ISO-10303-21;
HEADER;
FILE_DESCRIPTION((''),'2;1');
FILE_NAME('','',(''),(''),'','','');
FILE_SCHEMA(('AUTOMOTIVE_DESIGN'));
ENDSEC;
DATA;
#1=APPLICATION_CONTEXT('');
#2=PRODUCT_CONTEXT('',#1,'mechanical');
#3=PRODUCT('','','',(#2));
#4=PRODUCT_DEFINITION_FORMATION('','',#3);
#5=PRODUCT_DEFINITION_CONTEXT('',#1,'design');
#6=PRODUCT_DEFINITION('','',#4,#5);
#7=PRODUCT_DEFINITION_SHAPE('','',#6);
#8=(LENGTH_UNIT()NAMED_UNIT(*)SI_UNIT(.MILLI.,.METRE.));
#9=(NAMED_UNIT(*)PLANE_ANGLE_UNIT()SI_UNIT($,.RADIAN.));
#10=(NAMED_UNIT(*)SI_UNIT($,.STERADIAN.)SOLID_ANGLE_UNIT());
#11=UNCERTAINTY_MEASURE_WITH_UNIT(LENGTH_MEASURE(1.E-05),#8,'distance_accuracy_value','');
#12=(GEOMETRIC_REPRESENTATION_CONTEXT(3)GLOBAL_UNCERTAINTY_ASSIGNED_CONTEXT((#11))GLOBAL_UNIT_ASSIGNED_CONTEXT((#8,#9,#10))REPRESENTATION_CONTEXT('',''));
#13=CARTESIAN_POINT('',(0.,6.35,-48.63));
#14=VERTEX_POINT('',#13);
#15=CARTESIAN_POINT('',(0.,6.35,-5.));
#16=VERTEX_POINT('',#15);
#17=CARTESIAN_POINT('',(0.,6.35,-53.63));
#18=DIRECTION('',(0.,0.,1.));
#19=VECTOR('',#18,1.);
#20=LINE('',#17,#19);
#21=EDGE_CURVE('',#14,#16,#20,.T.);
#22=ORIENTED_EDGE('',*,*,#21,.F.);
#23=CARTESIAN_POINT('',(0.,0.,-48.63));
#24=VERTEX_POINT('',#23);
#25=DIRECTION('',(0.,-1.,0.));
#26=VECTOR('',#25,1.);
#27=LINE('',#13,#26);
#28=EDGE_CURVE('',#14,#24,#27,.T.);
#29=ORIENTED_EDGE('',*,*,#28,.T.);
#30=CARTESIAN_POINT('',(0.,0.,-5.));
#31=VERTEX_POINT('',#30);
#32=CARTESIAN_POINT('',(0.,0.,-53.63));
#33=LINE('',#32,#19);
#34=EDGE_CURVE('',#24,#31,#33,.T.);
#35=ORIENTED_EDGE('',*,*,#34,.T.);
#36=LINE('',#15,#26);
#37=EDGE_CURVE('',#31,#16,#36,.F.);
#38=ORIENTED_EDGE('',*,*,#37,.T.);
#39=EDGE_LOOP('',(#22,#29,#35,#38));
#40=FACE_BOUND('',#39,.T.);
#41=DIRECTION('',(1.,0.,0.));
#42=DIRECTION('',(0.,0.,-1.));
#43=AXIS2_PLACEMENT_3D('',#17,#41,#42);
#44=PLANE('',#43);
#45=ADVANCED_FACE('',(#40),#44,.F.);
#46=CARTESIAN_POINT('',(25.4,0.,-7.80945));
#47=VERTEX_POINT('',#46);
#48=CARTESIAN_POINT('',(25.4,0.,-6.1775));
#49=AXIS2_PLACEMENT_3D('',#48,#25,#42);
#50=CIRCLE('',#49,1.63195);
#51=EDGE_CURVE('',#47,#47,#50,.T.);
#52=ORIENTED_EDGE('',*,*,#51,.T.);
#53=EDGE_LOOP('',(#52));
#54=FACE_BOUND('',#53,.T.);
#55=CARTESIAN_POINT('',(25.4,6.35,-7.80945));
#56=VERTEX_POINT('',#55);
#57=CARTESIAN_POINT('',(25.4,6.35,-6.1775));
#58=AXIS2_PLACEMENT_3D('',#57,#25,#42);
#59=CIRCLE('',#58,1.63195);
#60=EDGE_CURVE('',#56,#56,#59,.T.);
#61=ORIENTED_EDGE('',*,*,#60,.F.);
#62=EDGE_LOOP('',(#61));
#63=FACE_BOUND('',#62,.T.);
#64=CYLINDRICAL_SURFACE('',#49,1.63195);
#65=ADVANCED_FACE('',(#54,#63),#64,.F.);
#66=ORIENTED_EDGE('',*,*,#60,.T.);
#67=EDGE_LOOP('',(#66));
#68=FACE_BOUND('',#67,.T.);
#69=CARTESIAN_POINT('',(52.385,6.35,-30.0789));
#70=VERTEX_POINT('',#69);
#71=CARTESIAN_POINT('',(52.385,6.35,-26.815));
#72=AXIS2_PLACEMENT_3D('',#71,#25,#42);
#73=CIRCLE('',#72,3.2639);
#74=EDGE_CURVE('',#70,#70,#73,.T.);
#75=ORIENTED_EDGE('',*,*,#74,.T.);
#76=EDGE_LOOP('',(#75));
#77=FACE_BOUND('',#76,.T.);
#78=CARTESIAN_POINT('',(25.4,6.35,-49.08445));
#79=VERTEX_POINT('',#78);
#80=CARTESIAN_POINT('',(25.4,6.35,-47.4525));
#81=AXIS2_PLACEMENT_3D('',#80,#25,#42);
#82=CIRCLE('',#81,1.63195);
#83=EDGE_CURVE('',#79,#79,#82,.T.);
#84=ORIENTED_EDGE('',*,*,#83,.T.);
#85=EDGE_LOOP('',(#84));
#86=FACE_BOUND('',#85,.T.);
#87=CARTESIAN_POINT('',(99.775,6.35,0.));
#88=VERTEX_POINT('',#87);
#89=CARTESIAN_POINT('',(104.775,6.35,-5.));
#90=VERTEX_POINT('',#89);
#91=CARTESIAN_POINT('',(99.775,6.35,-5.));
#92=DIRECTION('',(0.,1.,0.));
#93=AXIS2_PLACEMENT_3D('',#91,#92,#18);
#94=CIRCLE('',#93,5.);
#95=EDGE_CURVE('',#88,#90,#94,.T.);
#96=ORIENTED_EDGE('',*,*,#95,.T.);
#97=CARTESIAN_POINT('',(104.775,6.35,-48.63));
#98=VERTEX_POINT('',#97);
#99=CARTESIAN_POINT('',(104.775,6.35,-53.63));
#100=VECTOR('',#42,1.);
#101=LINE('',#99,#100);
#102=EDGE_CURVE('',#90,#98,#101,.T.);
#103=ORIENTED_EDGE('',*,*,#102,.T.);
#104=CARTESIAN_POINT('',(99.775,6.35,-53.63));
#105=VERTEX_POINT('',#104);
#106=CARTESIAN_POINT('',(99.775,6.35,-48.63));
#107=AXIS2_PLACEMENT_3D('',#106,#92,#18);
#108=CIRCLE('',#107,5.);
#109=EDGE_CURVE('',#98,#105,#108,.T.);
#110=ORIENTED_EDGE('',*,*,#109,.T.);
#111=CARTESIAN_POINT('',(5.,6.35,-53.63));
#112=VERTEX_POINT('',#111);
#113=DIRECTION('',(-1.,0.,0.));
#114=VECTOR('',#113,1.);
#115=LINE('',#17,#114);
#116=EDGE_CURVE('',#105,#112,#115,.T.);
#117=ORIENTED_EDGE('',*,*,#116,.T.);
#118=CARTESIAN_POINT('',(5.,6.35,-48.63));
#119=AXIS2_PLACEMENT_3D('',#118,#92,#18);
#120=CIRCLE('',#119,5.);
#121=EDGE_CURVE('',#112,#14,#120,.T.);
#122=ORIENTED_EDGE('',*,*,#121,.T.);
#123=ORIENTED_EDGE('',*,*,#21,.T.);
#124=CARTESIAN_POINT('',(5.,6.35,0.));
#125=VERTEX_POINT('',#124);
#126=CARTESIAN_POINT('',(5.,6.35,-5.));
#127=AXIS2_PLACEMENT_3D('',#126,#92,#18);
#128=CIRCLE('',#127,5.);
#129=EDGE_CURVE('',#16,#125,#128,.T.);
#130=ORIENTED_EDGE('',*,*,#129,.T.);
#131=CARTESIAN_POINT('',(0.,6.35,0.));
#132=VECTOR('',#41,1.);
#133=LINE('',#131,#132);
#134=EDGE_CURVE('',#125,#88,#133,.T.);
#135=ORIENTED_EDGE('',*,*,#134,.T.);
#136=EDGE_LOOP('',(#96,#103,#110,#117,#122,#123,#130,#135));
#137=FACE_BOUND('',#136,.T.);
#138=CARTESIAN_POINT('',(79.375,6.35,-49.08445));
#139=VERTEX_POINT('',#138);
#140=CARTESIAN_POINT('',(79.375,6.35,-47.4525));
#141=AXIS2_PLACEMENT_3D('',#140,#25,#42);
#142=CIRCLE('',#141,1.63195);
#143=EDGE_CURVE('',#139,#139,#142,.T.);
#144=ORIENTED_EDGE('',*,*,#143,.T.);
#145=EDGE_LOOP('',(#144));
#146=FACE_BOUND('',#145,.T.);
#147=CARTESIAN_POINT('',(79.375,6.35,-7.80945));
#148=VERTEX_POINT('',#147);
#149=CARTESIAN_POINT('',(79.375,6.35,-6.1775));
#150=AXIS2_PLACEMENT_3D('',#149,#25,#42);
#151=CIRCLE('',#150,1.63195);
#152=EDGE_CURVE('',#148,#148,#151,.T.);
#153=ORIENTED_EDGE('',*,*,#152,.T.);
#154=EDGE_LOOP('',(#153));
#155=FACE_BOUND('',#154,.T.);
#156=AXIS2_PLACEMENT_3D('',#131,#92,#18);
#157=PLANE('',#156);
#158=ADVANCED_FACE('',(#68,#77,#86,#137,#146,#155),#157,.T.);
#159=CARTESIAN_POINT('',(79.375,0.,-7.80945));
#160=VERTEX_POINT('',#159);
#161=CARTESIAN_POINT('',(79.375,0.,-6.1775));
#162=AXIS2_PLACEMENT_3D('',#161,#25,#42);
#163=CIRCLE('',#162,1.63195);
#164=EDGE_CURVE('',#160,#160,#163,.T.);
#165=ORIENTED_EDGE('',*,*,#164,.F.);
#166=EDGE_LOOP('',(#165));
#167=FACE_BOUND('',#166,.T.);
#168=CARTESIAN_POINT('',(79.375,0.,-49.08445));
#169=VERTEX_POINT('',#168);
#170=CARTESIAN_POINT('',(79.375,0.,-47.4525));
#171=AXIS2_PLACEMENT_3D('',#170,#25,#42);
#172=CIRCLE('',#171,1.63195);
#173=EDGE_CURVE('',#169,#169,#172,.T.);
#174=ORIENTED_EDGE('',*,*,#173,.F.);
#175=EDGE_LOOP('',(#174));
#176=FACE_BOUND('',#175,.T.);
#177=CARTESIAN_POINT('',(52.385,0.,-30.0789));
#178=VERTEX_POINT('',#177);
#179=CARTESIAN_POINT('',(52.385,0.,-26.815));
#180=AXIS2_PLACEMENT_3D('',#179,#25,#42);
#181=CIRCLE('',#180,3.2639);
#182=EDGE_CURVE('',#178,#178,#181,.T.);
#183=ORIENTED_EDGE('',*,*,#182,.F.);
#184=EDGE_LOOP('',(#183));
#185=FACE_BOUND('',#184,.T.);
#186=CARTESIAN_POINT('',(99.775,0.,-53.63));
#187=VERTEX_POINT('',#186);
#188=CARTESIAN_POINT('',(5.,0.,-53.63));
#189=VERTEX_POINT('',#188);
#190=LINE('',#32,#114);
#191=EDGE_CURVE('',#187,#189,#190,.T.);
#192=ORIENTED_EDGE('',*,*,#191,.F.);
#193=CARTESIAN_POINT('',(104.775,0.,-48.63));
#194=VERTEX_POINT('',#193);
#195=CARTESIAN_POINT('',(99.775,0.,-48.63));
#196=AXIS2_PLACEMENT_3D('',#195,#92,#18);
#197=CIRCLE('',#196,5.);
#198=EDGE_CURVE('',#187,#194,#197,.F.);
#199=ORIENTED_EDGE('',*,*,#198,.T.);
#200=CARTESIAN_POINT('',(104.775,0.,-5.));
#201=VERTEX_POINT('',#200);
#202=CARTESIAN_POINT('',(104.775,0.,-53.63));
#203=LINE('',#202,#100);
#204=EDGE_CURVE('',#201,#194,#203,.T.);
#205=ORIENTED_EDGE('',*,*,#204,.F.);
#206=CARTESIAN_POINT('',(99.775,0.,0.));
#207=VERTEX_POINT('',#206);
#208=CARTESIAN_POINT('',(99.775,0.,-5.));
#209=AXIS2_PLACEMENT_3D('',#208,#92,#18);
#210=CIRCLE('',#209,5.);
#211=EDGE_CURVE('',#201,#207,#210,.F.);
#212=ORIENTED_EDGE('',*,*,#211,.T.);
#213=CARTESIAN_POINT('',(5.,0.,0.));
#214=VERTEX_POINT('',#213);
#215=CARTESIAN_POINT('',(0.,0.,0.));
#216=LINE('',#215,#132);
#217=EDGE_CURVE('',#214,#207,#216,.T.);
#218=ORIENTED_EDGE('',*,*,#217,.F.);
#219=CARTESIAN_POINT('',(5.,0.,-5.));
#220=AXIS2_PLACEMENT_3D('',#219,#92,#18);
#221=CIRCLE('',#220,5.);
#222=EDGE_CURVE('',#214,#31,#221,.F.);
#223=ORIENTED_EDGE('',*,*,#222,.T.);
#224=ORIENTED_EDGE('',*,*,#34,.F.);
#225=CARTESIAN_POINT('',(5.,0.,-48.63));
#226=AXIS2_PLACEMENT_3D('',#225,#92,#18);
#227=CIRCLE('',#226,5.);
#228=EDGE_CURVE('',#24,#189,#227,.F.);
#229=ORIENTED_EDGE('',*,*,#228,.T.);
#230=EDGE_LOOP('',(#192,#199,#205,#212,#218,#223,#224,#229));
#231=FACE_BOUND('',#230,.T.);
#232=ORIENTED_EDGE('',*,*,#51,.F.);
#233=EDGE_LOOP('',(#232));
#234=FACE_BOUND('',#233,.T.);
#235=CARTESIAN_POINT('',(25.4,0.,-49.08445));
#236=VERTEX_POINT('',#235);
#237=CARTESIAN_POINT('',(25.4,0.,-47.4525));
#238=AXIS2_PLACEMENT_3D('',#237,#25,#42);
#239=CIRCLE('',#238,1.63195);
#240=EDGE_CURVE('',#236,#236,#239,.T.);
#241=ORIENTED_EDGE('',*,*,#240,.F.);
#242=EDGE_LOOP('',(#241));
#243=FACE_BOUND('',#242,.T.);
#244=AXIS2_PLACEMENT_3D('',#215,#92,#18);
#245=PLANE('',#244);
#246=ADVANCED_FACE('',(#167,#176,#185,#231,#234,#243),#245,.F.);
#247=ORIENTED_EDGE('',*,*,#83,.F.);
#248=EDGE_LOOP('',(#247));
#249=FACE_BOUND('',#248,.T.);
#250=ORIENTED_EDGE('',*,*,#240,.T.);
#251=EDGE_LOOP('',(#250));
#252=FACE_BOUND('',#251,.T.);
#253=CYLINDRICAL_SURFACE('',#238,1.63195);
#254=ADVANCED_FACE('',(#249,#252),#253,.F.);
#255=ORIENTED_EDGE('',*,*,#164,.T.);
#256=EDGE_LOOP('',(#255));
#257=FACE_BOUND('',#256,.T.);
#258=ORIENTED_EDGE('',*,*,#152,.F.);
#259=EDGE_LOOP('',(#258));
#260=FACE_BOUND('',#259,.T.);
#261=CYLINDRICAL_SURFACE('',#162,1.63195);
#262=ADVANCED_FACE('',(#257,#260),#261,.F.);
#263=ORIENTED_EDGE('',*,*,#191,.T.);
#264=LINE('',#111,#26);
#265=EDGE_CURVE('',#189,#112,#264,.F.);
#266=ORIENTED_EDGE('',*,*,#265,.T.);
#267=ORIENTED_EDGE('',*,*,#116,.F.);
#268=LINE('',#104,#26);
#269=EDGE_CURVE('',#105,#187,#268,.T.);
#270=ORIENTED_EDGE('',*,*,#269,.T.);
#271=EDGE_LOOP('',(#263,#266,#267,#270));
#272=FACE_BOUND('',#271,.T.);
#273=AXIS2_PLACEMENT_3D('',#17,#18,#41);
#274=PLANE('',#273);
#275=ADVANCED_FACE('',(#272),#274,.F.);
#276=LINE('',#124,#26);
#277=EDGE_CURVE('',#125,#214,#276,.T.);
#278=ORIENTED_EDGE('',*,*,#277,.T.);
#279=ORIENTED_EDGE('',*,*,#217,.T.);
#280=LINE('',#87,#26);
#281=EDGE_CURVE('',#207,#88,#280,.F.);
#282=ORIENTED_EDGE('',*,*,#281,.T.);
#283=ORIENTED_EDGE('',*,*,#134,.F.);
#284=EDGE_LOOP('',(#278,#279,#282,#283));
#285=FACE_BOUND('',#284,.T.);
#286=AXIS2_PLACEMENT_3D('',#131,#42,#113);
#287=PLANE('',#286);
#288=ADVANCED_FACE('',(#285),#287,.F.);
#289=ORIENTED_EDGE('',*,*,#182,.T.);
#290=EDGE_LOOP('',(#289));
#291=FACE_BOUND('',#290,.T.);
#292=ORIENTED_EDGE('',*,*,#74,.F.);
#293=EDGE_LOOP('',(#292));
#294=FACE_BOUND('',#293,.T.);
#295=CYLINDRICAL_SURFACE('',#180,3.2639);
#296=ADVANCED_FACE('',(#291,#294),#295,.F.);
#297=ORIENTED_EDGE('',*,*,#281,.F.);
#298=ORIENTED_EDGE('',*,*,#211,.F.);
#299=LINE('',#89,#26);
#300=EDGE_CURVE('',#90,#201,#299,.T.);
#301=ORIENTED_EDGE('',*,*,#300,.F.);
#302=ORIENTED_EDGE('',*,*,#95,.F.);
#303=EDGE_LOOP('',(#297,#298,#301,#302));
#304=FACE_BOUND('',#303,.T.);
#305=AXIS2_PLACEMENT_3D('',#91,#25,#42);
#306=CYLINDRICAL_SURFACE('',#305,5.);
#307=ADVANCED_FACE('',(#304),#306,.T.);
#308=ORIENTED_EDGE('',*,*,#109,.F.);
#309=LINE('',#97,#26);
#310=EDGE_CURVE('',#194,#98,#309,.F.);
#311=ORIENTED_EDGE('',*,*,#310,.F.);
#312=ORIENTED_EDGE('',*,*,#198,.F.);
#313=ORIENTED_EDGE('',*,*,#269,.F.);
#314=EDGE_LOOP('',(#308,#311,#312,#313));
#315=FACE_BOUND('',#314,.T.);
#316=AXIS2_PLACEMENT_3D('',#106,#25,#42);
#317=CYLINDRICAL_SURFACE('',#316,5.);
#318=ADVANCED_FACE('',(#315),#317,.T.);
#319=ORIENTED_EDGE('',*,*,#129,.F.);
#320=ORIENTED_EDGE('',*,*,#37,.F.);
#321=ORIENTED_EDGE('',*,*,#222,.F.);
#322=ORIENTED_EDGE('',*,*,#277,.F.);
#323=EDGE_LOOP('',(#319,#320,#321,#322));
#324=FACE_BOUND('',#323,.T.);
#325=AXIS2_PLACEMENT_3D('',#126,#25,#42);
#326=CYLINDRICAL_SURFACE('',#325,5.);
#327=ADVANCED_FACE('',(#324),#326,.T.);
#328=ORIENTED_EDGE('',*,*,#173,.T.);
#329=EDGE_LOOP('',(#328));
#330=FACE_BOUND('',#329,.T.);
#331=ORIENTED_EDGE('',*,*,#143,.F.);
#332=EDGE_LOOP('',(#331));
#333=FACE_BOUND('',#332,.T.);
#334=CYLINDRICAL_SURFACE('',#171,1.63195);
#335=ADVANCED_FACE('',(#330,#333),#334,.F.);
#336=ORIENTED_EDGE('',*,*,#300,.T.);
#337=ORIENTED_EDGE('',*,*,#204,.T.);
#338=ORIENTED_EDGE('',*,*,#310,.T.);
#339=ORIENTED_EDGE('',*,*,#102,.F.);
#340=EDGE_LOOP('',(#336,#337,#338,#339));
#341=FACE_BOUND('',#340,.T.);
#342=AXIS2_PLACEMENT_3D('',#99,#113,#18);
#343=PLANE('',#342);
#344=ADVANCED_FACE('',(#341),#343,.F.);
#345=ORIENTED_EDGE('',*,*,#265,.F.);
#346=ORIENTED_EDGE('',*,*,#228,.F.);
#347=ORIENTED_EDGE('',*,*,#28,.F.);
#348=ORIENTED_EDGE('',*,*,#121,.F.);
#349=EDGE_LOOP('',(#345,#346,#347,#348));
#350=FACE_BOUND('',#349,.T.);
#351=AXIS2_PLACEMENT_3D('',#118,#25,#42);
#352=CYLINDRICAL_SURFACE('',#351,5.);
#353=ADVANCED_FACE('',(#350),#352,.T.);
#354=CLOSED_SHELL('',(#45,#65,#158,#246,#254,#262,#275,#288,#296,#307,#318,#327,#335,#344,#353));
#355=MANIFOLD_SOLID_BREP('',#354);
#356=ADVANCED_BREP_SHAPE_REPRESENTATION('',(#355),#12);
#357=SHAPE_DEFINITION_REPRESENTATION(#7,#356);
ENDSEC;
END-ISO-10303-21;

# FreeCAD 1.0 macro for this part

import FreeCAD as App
import Part
import Sketcher
Q = App.Units.Quantity


def edges_at(feature, points):
    """Names of the edges that pass closest to the given points."""
    edges = feature.Shape.Edges
    near = lambda p: min(range(len(edges)), key=lambda i: edges[i].distToShape(Part.Vertex(*p))[0])
    return sorted({f"Edge{near(p) + 1}" for p in points})

doc = App.newDocument("Part")
body = doc.addObject("PartDesign::Body", "Body")

sketch1 = body.newObject("Sketcher::SketchObject", "Sketch")
sketch1.AttachmentSupport = (doc.getObject("XZ_Plane"), [""])
sketch1.MapMode = "FlatFace"
sketch1.addGeometry(Part.LineSegment(App.Vector(0, -54, 0), App.Vector(0, 0, 0)), False)
sketch1.addGeometry(Part.LineSegment(App.Vector(0, 0, 0), App.Vector(105, 0, 0)), False)
sketch1.addGeometry(Part.LineSegment(App.Vector(105, 0, 0), App.Vector(105, -54, 0)), False)
sketch1.addGeometry(Part.LineSegment(App.Vector(105, -54, 0), App.Vector(0, -54, 0)), False)
sketch1.addConstraint(Sketcher.Constraint("Coincident", 0, 2, 1, 1))
sketch1.addConstraint(Sketcher.Constraint("Coincident", 1, 2, 2, 1))
sketch1.addConstraint(Sketcher.Constraint("Coincident", 2, 2, 3, 1))
sketch1.addConstraint(Sketcher.Constraint("Coincident", 3, 2, 0, 1))
sketch1.addConstraint(Sketcher.Constraint("Vertical", 0))
sketch1.addConstraint(Sketcher.Constraint("Horizontal", 1))
sketch1.addConstraint(Sketcher.Constraint("Vertical", 2))
sketch1.addConstraint(Sketcher.Constraint("Horizontal", 3))
sketch1.addConstraint(Sketcher.Constraint("Coincident", 0, 2, -1, 1))
sketch1.addConstraint(Sketcher.Constraint("DistanceX", 1, 1, 1, 2, Q("4.125 in")))
sketch1.addConstraint(Sketcher.Constraint("DistanceY", 0, 1, 0, 2, Q("53.63 mm")))
pad1 = body.newObject("PartDesign::Pad", "Pad")
pad1.Profile = sketch1
pad1.Length = Q("0.25 in")
pad1.Reversed = True

sketch2 = body.newObject("Sketcher::SketchObject", "Sketch001")
sketch2.AttachmentSupport = (doc.getObject("XZ_Plane"), [""])
sketch2.MapMode = "FlatFace"
sketch2.addGeometry(Part.Circle(App.Vector(52.4, -26.8, 0), App.Vector(0, 0, 1), 3.3), False)
sketch2.addConstraint(Sketcher.Constraint("Diameter", 0, Q("0.257 in")))
sketch2.addConstraint(Sketcher.Constraint("DistanceX", -1, 1, 0, 3, Q("52.385 mm")))
sketch2.addConstraint(Sketcher.Constraint("DistanceY", 0, 3, -1, 1, Q("26.815 mm")))
doc.recompute()
hole = body.newObject("PartDesign::Hole", "Hole")
hole.Profile = sketch2
hole.ThreadType = "None"
hole.Diameter = Q("0.257 in")
hole.DepthType = "ThroughAll"
doc.recompute()

fillet = body.newObject("PartDesign::Fillet", "Fillet")
fillet.Base = (hole, edges_at(hole, [
    (0, 3.175, -53.63),
    (104.775, 3.175, -53.63),
    (104.775, 3.175, 0),
    (0, 3.175, 0),
]))
fillet.Radius = 5

sketch3 = body.newObject("Sketcher::SketchObject", "Sketch002")
sketch3.AttachmentSupport = (doc.getObject("XZ_Plane"), [""])
sketch3.MapMode = "FlatFace"
sketch3.addGeometry(Part.Circle(App.Vector(25.4, -6.2, 0), App.Vector(0, 0, 1), 1.6), False)
sketch3.addGeometry(Part.Circle(App.Vector(25.4, -47.5, 0), App.Vector(0, 0, 1), 1.6), False)
sketch3.addGeometry(Part.Circle(App.Vector(79.4, -47.5, 0), App.Vector(0, 0, 1), 1.6), False)
sketch3.addGeometry(Part.Circle(App.Vector(79.4, -6.2, 0), App.Vector(0, 0, 1), 1.6), False)
sketch3.addConstraint(Sketcher.Constraint("Equal", 0, 1))
sketch3.addConstraint(Sketcher.Constraint("Equal", 1, 2))
sketch3.addConstraint(Sketcher.Constraint("Equal", 2, 3))
sketch3.addConstraint(Sketcher.Constraint("Horizontal", 1, 3, 2, 3))
sketch3.addConstraint(Sketcher.Constraint("Horizontal", 0, 3, 3, 3))
sketch3.addConstraint(Sketcher.Constraint("Vertical", 0, 3, 1, 3))
sketch3.addConstraint(Sketcher.Constraint("Vertical", 2, 3, 3, 3))
sketch3.addConstraint(Sketcher.Constraint("DistanceX", -1, 1, 0, 3, Q("1 in")))
sketch3.addConstraint(Sketcher.Constraint("Diameter", 0, Q("0.1285 in")))
sketch3.addConstraint(Sketcher.Constraint("DistanceX", -1, 1, 2, 3, Q("3.125 in")))
sketch3.addConstraint(Sketcher.Constraint("DistanceY", 1, 3, 0, 3, Q("1.625 in")))
sketch3.addConstraint(Sketcher.Constraint("DistanceY", 0, 3, -1, 1, Q("6.1775 mm")))
doc.recompute()
hole2 = body.newObject("PartDesign::Hole", "Hole001")
hole2.Profile = sketch3
hole2.ThreadType = "None"
hole2.Diameter = Q("0.1285 in")
hole2.DepthType = "ThroughAll"

doc.recompute()
